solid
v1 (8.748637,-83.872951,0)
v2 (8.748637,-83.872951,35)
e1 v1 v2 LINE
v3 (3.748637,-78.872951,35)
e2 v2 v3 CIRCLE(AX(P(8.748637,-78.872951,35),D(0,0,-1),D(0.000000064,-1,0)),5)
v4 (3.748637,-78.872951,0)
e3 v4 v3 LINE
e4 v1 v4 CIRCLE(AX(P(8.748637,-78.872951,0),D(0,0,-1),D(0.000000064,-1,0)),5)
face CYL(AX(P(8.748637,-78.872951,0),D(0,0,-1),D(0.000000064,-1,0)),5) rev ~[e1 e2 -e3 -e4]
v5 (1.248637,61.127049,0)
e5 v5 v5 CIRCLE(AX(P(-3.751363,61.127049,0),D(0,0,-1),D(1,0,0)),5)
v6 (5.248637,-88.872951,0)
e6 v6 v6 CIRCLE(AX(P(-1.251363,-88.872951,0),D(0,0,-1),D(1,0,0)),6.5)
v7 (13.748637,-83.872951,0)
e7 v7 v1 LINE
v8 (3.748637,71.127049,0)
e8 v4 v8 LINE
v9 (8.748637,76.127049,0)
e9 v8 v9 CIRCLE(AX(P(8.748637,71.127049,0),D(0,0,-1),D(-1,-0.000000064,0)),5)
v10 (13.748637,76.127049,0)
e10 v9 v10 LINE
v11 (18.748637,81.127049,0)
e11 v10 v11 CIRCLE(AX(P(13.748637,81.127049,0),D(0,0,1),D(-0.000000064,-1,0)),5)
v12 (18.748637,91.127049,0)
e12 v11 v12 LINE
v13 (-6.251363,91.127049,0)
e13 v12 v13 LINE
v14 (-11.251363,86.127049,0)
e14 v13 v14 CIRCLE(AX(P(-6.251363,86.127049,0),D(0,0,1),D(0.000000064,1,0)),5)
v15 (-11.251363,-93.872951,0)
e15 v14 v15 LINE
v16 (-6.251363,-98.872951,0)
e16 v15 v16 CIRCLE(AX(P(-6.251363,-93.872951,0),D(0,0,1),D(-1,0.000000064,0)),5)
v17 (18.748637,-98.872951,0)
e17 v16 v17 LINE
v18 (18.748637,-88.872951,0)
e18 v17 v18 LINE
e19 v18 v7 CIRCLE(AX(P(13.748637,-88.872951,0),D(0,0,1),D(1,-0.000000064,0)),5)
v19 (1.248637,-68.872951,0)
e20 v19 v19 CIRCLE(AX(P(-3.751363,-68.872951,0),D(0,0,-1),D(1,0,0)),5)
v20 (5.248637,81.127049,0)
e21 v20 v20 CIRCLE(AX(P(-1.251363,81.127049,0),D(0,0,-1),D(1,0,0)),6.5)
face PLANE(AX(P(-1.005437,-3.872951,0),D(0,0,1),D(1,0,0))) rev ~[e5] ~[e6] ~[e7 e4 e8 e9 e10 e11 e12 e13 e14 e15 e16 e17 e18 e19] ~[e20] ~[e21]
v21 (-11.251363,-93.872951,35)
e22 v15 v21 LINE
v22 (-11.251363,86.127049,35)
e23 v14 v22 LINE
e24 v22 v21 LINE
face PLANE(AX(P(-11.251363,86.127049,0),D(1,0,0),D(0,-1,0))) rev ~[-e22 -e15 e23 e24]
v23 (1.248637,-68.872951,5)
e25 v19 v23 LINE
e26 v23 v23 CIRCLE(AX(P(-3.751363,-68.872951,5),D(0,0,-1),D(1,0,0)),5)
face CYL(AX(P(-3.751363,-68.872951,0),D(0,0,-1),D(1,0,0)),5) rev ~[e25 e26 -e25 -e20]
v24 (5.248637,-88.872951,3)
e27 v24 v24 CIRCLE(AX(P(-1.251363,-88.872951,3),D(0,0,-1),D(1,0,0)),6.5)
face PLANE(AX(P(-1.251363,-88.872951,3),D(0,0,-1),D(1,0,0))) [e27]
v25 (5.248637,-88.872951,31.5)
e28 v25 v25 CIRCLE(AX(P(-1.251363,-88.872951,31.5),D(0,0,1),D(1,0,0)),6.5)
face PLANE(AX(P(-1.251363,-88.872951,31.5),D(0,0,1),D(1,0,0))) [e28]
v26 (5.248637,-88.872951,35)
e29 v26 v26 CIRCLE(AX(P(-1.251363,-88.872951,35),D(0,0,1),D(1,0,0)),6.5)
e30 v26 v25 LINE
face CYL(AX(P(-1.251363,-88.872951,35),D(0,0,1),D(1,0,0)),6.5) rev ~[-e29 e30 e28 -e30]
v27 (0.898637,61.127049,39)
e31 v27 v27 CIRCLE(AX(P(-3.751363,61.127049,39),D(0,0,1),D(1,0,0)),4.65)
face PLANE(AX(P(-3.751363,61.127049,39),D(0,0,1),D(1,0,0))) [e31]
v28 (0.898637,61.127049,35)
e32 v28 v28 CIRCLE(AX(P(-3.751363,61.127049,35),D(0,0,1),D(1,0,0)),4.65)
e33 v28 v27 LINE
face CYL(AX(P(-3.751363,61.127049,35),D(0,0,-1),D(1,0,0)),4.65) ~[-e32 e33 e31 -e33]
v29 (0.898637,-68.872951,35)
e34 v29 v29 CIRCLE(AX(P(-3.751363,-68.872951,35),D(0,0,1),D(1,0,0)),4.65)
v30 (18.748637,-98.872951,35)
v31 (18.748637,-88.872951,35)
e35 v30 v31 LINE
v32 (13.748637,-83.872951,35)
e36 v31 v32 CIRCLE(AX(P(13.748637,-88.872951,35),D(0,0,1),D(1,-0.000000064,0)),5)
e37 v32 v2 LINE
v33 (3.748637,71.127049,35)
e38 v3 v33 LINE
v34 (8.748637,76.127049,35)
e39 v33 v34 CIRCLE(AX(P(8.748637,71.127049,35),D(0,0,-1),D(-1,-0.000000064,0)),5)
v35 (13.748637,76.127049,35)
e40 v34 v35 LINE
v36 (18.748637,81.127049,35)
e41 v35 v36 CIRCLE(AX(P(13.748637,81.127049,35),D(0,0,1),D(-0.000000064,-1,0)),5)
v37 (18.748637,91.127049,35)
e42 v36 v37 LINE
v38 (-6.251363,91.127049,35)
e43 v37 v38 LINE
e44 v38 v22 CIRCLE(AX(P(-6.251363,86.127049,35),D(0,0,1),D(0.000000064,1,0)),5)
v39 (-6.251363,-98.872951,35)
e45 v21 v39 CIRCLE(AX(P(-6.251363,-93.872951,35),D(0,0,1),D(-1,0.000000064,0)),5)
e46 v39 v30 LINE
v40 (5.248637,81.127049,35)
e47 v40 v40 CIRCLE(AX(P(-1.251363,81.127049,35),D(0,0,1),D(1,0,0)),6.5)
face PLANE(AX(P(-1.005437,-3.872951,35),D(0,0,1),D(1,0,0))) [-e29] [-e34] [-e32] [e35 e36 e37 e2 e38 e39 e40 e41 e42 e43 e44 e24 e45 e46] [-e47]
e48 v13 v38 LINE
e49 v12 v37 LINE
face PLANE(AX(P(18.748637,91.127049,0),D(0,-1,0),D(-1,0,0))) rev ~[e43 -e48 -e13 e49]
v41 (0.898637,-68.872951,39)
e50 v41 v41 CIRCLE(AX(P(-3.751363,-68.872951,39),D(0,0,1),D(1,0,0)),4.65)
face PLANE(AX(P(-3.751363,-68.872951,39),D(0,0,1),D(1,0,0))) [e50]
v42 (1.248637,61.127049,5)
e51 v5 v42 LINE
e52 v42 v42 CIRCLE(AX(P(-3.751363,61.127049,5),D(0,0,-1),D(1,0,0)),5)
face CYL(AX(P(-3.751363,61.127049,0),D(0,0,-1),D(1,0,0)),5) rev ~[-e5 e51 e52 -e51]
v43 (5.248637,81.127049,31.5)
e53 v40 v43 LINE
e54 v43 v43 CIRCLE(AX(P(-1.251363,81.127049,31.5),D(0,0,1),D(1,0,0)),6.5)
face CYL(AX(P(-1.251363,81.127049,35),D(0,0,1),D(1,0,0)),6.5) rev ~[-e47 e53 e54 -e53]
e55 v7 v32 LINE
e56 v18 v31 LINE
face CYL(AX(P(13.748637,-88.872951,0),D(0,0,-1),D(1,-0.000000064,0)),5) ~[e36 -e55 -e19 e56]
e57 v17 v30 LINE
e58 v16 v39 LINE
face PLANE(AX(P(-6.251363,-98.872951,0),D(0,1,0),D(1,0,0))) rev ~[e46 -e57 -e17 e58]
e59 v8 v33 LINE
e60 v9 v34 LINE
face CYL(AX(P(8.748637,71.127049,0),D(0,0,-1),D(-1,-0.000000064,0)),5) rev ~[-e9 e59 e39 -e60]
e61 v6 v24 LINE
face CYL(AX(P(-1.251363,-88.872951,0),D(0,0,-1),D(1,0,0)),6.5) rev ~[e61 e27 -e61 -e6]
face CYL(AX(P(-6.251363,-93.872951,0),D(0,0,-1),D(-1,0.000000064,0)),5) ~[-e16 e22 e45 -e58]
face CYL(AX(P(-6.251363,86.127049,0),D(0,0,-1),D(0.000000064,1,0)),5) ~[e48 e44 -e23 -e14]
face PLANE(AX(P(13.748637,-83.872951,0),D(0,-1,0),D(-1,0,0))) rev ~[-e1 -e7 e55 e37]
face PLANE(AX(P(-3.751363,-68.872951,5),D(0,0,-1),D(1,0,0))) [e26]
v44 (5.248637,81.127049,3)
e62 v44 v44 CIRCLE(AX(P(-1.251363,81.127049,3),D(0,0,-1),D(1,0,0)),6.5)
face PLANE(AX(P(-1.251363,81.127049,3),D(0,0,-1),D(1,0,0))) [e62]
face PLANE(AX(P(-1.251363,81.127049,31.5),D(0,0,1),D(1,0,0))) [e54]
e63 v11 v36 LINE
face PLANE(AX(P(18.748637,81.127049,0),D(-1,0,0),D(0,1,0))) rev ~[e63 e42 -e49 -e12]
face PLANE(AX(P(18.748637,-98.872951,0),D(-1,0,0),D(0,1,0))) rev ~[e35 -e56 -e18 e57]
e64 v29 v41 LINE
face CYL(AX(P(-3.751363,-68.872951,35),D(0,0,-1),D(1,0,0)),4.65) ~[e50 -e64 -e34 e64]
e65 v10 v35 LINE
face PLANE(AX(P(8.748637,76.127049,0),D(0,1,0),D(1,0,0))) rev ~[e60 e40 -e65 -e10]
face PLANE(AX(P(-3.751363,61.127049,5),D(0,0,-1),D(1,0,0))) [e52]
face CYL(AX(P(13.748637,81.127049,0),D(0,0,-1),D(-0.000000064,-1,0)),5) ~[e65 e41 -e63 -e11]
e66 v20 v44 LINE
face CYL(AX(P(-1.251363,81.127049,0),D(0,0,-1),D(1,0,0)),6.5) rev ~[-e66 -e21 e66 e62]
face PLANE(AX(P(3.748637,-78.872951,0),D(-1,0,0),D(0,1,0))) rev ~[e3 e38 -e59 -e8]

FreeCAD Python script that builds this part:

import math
import FreeCAD as App
import Part
import Sketcher

doc = App.newDocument("Part")
body = doc.addObject("PartDesign::Body", "Body")

# Sketch on XY plane
sketch1 = doc.addObject("Sketcher::SketchObject", "Sketch")
body.addObject(sketch1)
sketch1.AttachmentSupport = (doc.XY_Plane, [""])
sketch1.MapMode = "FlatFace"
sketch1.addGeometry(Part.LineSegment(App.Vector(18.7, 81.1, 0), App.Vector(18.7, 91.1, 0)), False)
sketch1.addGeometry(Part.LineSegment(App.Vector(18.7, 91.1, 0), App.Vector(-6.3, 91.1, 0)), False)
sketch1.addGeometry(Part.ArcOfCircle(Part.Circle(App.Vector(-6.3, 86.1, 0), App.Vector(0, 0, 1), 5), math.radians(90), math.radians(180)), False)
sketch1.addGeometry(Part.LineSegment(App.Vector(-11.3, 86.1, 0), App.Vector(-11.3, -93.9, 0)), False)
sketch1.addGeometry(Part.ArcOfCircle(Part.Circle(App.Vector(-6.3, -93.9, 0), App.Vector(0, 0, 1), 5), math.radians(180), math.radians(270)), False)
sketch1.addGeometry(Part.LineSegment(App.Vector(-6.3, -98.9, 0), App.Vector(18.7, -98.9, 0)), False)
sketch1.addGeometry(Part.LineSegment(App.Vector(18.7, -98.9, 0), App.Vector(18.7, -88.9, 0)), False)
sketch1.addGeometry(Part.ArcOfCircle(Part.Circle(App.Vector(13.7, -88.9, 0), App.Vector(0, 0, 1), 5), math.radians(0), math.radians(90)), False)
sketch1.addGeometry(Part.LineSegment(App.Vector(13.7, -83.9, 0), App.Vector(8.7, -83.9, 0)), False)
sketch1.addGeometry(Part.ArcOfCircle(Part.Circle(App.Vector(8.7, -78.9, 0), App.Vector(0, 0, 1), 5), math.radians(180), math.radians(270)), False)
sketch1.addGeometry(Part.LineSegment(App.Vector(3.7, -78.9, 0), App.Vector(3.7, 71.1, 0)), False)
sketch1.addGeometry(Part.ArcOfCircle(Part.Circle(App.Vector(8.7, 71.1, 0), App.Vector(0, 0, 1), 5), math.radians(90), math.radians(180)), False)
sketch1.addGeometry(Part.LineSegment(App.Vector(8.7, 76.1, 0), App.Vector(13.7, 76.1, 0)), False)
sketch1.addGeometry(Part.ArcOfCircle(Part.Circle(App.Vector(13.7, 81.1, 0), App.Vector(0, 0, 1), 5), math.radians(-90), math.radians(0)), False)
sketch1.addConstraint(Sketcher.Constraint("Coincident", 0, 2, 1, 1))
sketch1.addConstraint(Sketcher.Constraint("Tangent", 1, 2, 2, 1))
sketch1.addConstraint(Sketcher.Constraint("Tangent", 2, 2, 3, 1))
sketch1.addConstraint(Sketcher.Constraint("Tangent", 3, 2, 4, 1))
sketch1.addConstraint(Sketcher.Constraint("Tangent", 4, 2, 5, 1))
sketch1.addConstraint(Sketcher.Constraint("Coincident", 5, 2, 6, 1))
sketch1.addConstraint(Sketcher.Constraint("Tangent", 6, 2, 7, 1))
sketch1.addConstraint(Sketcher.Constraint("Tangent", 7, 2, 8, 1))
sketch1.addConstraint(Sketcher.Constraint("Tangent", 8, 2, 9, 2))
sketch1.addConstraint(Sketcher.Constraint("Tangent", 9, 1, 10, 1))
sketch1.addConstraint(Sketcher.Constraint("Tangent", 10, 2, 11, 2))
sketch1.addConstraint(Sketcher.Constraint("Tangent", 11, 1, 12, 1))
sketch1.addConstraint(Sketcher.Constraint("Tangent", 12, 2, 13, 1))
sketch1.addConstraint(Sketcher.Constraint("Tangent", 13, 2, 0, 1))
sketch1.addConstraint(Sketcher.Constraint("Vertical", 0))
sketch1.addConstraint(Sketcher.Constraint("Horizontal", 1))
sketch1.addConstraint(Sketcher.Constraint("Vertical", 3))
sketch1.addConstraint(Sketcher.Constraint("Horizontal", 5))
sketch1.addConstraint(Sketcher.Constraint("Vertical", 6))
sketch1.addConstraint(Sketcher.Constraint("Horizontal", 8))
sketch1.addConstraint(Sketcher.Constraint("Vertical", 10))
sketch1.addConstraint(Sketcher.Constraint("Horizontal", 12))
sketch1.addConstraint(Sketcher.Constraint("Equal", 2, 4))
sketch1.addConstraint(Sketcher.Constraint("Equal", 4, 7))
sketch1.addConstraint(Sketcher.Constraint("Equal", 7, 9))
sketch1.addConstraint(Sketcher.Constraint("Equal", 9, 11))
sketch1.addConstraint(Sketcher.Constraint("Equal", 11, 13))
sketch1.addConstraint(Sketcher.Constraint("Vertical", 7, 3, 13, 3))
sketch1.addConstraint(Sketcher.Constraint("Equal", 0, 6))
sketch1.addConstraint(Sketcher.Constraint("Radius", 2, 5.0))
sketch1.addConstraint(Sketcher.Constraint("DistanceX", 1, 2, 1, 1, 25.0))
sketch1.addConstraint(Sketcher.Constraint("DistanceX", 8, 2, 8, 1, 5.0))
sketch1.addConstraint(Sketcher.Constraint("DistanceY", 0, 1, 0, 2, 10.0))
sketch1.addConstraint(Sketcher.Constraint("DistanceY", 3, 2, 3, 1, 180.0))
sketch1.addConstraint(Sketcher.Constraint("DistanceY", -1, 1, 2, 3, 86.127049))
sketch1.addConstraint(Sketcher.Constraint("DistanceX", 2, 3, -1, 1, 6.251363))
pad1 = doc.addObject("PartDesign::Pad", "Pad")
body.addObject(pad1)
pad1.Profile = sketch1
pad1.Length = 35

# Sketch on XY plane
sketch2 = doc.addObject("Sketcher::SketchObject", "Sketch001")
body.addObject(sketch2)
sketch2.AttachmentSupport = (doc.XY_Plane, [""])
sketch2.MapMode = "FlatFace"
sketch2.AttachmentOffset = App.Placement(App.Vector(0, 0, 35), App.Rotation())
sketch2.addGeometry(Part.Circle(App.Vector(-1, 81, 0), App.Vector(0, 0, 1), 6), False)
sketch2.addGeometry(Part.Circle(App.Vector(-1, -89, 0), App.Vector(0, 0, 1), 6), False)
sketch2.addConstraint(Sketcher.Constraint("Equal", 0, 1))
sketch2.addConstraint(Sketcher.Constraint("Vertical", 0, 3, 1, 3))
sketch2.addConstraint(Sketcher.Constraint("Diameter", 0, 13.0))
sketch2.addConstraint(Sketcher.Constraint("DistanceY", 1, 3, 0, 3, 170.0))
sketch2.addConstraint(Sketcher.Constraint("DistanceY", -1, 1, 0, 3, 81.127049))
sketch2.addConstraint(Sketcher.Constraint("DistanceX", 0, 3, -1, 1, 1.251363))
pocket1 = doc.addObject("PartDesign::Pocket", "Pocket")
body.addObject(pocket1)
pocket1.Profile = sketch2
pocket1.Length = 3.5

# Sketch on XY plane
sketch3 = doc.addObject("Sketcher::SketchObject", "Sketch002")
body.addObject(sketch3)
sketch3.AttachmentSupport = (doc.XY_Plane, [""])
sketch3.MapMode = "FlatFace"
sketch3.AttachmentOffset = App.Placement(App.Vector(0, 0, 35), App.Rotation())
sketch3.addGeometry(Part.Circle(App.Vector(-3.8, 61.1, 0), App.Vector(0, 0, 1), 4.7), False)
sketch3.addGeometry(Part.Circle(App.Vector(-3.8, -68.9, 0), App.Vector(0, 0, 1), 4.7), False)
sketch3.addConstraint(Sketcher.Constraint("Equal", 0, 1))
sketch3.addConstraint(Sketcher.Constraint("Vertical", 0, 3, 1, 3))
sketch3.addConstraint(Sketcher.Constraint("Diameter", 0, 9.3))
sketch3.addConstraint(Sketcher.Constraint("DistanceY", 1, 3, 0, 3, 130.0))
sketch3.addConstraint(Sketcher.Constraint("DistanceY", -1, 1, 0, 3, 61.127049))
sketch3.addConstraint(Sketcher.Constraint("DistanceX", 0, 3, -1, 1, 3.751363))
pad2 = doc.addObject("PartDesign::Pad", "Pad001")
body.addObject(pad2)
pad2.Profile = sketch3
pad2.Length = 4

# Sketch on XY plane
sketch4 = doc.addObject("Sketcher::SketchObject", "Sketch003")
body.addObject(sketch4)
sketch4.AttachmentSupport = (doc.XY_Plane, [""])
sketch4.MapMode = "FlatFace"
sketch4.addGeometry(Part.Circle(App.Vector(-1, 81, 0), App.Vector(0, 0, 1), 6), False)
sketch4.addGeometry(Part.Circle(App.Vector(-1, -89, 0), App.Vector(0, 0, 1), 6), False)
sketch4.addConstraint(Sketcher.Constraint("Equal", 0, 1))
sketch4.addConstraint(Sketcher.Constraint("Vertical", 0, 3, 1, 3))
sketch4.addConstraint(Sketcher.Constraint("Diameter", 0, 13.0))
sketch4.addConstraint(Sketcher.Constraint("DistanceY", 1, 3, 0, 3, 170.0))
sketch4.addConstraint(Sketcher.Constraint("DistanceY", -1, 1, 0, 3, 81.127049))
sketch4.addConstraint(Sketcher.Constraint("DistanceX", 0, 3, -1, 1, 1.251363))
pocket2 = doc.addObject("PartDesign::Pocket", "Pocket001")
body.addObject(pocket2)
pocket2.Profile = sketch4
pocket2.Length = 3
pocket2.Reversed = True

# Sketch on XY plane
sketch5 = doc.addObject("Sketcher::SketchObject", "Sketch004")
body.addObject(sketch5)
sketch5.AttachmentSupport = (doc.XY_Plane, [""])
sketch5.MapMode = "FlatFace"
sketch5.addGeometry(Part.Circle(App.Vector(-4, 61, 0), App.Vector(0, 0, 1), 5), False)
sketch5.addGeometry(Part.Circle(App.Vector(-4, -69, 0), App.Vector(0, 0, 1), 5), False)
sketch5.addConstraint(Sketcher.Constraint("Equal", 0, 1))
sketch5.addConstraint(Sketcher.Constraint("Vertical", 0, 3, 1, 3))
sketch5.addConstraint(Sketcher.Constraint("Diameter", 0, 10.0))
sketch5.addConstraint(Sketcher.Constraint("DistanceY", 1, 3, 0, 3, 130.0))
sketch5.addConstraint(Sketcher.Constraint("DistanceY", -1, 1, 0, 3, 61.127049))
sketch5.addConstraint(Sketcher.Constraint("DistanceX", 0, 3, -1, 1, 3.751363))
pocket3 = doc.addObject("PartDesign::Pocket", "Pocket002")
body.addObject(pocket3)
pocket3.Profile = sketch5
pocket3.Length = 5
pocket3.Reversed = True

doc.recompute()
